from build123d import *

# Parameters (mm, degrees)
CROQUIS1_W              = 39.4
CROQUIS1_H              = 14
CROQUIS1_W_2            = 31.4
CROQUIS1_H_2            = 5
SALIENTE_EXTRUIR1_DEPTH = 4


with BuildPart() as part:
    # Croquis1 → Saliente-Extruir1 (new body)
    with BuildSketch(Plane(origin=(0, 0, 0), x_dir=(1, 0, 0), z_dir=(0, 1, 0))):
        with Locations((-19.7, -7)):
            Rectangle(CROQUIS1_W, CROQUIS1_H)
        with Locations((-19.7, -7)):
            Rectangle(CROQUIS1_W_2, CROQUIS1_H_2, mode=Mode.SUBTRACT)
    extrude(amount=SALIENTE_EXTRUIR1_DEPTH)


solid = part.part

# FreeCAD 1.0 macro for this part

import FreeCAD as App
import Part
import Sketcher

V = App.Vector
Q = App.Units.Quantity

doc = App.newDocument("Part")
params = doc.addObject("Spreadsheet::Sheet", "Params")
for row, (alias, value) in enumerate([
    ("sketch1_height", "14 mm"),
    ("sketch1_height2", "5 mm"),
    ("sketch1_width", "39.4 mm"),
    ("sketch1_width2", "31.4 mm"),
    ("pad1_length", "4 mm"),
], start=1):
    params.set(f"A{row}", alias)
    params.set(f"B{row}", "=" + value)
    params.setAlias(f"B{row}", alias)

body = doc.addObject("PartDesign::Body", "Body")

# Sketch on XZ plane
sketch1 = body.newObject("Sketcher::SketchObject", "Sketch")
sketch1.AttachmentSupport = (doc.getObject("XZ_Plane"), [""])
sketch1.MapMode = "FlatFace"
sketch1.addGeometry(Part.LineSegment(V(-39.4, 0, 0), V(-39.4, 14, 0)), False)
sketch1.addGeometry(Part.LineSegment(V(-39.4, 14, 0), V(0, 14, 0)), False)
sketch1.addGeometry(Part.LineSegment(V(0, 14, 0), V(0, 0, 0)), False)
sketch1.addGeometry(Part.LineSegment(V(0, 0, 0), V(-39.4, 0, 0)), False)
sketch1.addGeometry(Part.LineSegment(V(-4, 9.5, 0), V(-35.4, 9.5, 0)), False)
sketch1.addGeometry(Part.LineSegment(V(-35.4, 9.5, 0), V(-35.4, 4.5, 0)), False)
sketch1.addGeometry(Part.LineSegment(V(-35.4, 4.5, 0), V(-4, 4.5, 0)), False)
sketch1.addGeometry(Part.LineSegment(V(-4, 4.5, 0), V(-4, 9.5, 0)), False)
sketch1.addConstraint(Sketcher.Constraint("Coincident", 0, 2, 1, 1))
sketch1.addConstraint(Sketcher.Constraint("Coincident", 1, 2, 2, 1))
sketch1.addConstraint(Sketcher.Constraint("Coincident", 2, 2, 3, 1))
sketch1.addConstraint(Sketcher.Constraint("Coincident", 3, 2, 0, 1))
sketch1.addConstraint(Sketcher.Constraint("Coincident", 4, 2, 5, 1))
sketch1.addConstraint(Sketcher.Constraint("Coincident", 5, 2, 6, 1))
sketch1.addConstraint(Sketcher.Constraint("Coincident", 6, 2, 7, 1))
sketch1.addConstraint(Sketcher.Constraint("Coincident", 7, 2, 4, 1))
sketch1.addConstraint(Sketcher.Constraint("Vertical", 0))
sketch1.addConstraint(Sketcher.Constraint("Horizontal", 1))
sketch1.addConstraint(Sketcher.Constraint("Vertical", 2))
sketch1.addConstraint(Sketcher.Constraint("Horizontal", 3))
sketch1.addConstraint(Sketcher.Constraint("Horizontal", 4))
sketch1.addConstraint(Sketcher.Constraint("Vertical", 5))
sketch1.addConstraint(Sketcher.Constraint("Horizontal", 6))
sketch1.addConstraint(Sketcher.Constraint("Vertical", 7))
sketch1.addConstraint(Sketcher.Constraint("Coincident", 2, 2, -1, 1))
sketch1.addConstraint(Sketcher.Constraint("DistanceY", 0, 1, 0, 2, Q("14 mm")))
sketch1.addConstraint(Sketcher.Constraint("DistanceY", 5, 2, 5, 1, Q("5 mm")))
sketch1.addConstraint(Sketcher.Constraint("DistanceX", 1, 1, 1, 2, Q("39.4 mm")))
sketch1.addConstraint(Sketcher.Constraint("DistanceX", 4, 2, 4, 1, Q("31.4 mm")))
sketch1.addConstraint(Sketcher.Constraint("DistanceX", 6, 2, -1, 1, Q("4 mm")))
sketch1.addConstraint(Sketcher.Constraint("DistanceY", -1, 1, 4, 2, Q("9.5 mm")))
sketch1.setExpression("Constraints[17]", "Params.sketch1_height")
sketch1.setExpression("Constraints[18]", "Params.sketch1_height2")
sketch1.setExpression("Constraints[19]", "Params.sketch1_width")
sketch1.setExpression("Constraints[20]", "Params.sketch1_width2")
pad1 = body.newObject("PartDesign::Pad", "Pad")
pad1.Profile = sketch1
pad1.setExpression("Length", "Params.pad1_length")
pad1.Reversed = True

doc.recompute()
